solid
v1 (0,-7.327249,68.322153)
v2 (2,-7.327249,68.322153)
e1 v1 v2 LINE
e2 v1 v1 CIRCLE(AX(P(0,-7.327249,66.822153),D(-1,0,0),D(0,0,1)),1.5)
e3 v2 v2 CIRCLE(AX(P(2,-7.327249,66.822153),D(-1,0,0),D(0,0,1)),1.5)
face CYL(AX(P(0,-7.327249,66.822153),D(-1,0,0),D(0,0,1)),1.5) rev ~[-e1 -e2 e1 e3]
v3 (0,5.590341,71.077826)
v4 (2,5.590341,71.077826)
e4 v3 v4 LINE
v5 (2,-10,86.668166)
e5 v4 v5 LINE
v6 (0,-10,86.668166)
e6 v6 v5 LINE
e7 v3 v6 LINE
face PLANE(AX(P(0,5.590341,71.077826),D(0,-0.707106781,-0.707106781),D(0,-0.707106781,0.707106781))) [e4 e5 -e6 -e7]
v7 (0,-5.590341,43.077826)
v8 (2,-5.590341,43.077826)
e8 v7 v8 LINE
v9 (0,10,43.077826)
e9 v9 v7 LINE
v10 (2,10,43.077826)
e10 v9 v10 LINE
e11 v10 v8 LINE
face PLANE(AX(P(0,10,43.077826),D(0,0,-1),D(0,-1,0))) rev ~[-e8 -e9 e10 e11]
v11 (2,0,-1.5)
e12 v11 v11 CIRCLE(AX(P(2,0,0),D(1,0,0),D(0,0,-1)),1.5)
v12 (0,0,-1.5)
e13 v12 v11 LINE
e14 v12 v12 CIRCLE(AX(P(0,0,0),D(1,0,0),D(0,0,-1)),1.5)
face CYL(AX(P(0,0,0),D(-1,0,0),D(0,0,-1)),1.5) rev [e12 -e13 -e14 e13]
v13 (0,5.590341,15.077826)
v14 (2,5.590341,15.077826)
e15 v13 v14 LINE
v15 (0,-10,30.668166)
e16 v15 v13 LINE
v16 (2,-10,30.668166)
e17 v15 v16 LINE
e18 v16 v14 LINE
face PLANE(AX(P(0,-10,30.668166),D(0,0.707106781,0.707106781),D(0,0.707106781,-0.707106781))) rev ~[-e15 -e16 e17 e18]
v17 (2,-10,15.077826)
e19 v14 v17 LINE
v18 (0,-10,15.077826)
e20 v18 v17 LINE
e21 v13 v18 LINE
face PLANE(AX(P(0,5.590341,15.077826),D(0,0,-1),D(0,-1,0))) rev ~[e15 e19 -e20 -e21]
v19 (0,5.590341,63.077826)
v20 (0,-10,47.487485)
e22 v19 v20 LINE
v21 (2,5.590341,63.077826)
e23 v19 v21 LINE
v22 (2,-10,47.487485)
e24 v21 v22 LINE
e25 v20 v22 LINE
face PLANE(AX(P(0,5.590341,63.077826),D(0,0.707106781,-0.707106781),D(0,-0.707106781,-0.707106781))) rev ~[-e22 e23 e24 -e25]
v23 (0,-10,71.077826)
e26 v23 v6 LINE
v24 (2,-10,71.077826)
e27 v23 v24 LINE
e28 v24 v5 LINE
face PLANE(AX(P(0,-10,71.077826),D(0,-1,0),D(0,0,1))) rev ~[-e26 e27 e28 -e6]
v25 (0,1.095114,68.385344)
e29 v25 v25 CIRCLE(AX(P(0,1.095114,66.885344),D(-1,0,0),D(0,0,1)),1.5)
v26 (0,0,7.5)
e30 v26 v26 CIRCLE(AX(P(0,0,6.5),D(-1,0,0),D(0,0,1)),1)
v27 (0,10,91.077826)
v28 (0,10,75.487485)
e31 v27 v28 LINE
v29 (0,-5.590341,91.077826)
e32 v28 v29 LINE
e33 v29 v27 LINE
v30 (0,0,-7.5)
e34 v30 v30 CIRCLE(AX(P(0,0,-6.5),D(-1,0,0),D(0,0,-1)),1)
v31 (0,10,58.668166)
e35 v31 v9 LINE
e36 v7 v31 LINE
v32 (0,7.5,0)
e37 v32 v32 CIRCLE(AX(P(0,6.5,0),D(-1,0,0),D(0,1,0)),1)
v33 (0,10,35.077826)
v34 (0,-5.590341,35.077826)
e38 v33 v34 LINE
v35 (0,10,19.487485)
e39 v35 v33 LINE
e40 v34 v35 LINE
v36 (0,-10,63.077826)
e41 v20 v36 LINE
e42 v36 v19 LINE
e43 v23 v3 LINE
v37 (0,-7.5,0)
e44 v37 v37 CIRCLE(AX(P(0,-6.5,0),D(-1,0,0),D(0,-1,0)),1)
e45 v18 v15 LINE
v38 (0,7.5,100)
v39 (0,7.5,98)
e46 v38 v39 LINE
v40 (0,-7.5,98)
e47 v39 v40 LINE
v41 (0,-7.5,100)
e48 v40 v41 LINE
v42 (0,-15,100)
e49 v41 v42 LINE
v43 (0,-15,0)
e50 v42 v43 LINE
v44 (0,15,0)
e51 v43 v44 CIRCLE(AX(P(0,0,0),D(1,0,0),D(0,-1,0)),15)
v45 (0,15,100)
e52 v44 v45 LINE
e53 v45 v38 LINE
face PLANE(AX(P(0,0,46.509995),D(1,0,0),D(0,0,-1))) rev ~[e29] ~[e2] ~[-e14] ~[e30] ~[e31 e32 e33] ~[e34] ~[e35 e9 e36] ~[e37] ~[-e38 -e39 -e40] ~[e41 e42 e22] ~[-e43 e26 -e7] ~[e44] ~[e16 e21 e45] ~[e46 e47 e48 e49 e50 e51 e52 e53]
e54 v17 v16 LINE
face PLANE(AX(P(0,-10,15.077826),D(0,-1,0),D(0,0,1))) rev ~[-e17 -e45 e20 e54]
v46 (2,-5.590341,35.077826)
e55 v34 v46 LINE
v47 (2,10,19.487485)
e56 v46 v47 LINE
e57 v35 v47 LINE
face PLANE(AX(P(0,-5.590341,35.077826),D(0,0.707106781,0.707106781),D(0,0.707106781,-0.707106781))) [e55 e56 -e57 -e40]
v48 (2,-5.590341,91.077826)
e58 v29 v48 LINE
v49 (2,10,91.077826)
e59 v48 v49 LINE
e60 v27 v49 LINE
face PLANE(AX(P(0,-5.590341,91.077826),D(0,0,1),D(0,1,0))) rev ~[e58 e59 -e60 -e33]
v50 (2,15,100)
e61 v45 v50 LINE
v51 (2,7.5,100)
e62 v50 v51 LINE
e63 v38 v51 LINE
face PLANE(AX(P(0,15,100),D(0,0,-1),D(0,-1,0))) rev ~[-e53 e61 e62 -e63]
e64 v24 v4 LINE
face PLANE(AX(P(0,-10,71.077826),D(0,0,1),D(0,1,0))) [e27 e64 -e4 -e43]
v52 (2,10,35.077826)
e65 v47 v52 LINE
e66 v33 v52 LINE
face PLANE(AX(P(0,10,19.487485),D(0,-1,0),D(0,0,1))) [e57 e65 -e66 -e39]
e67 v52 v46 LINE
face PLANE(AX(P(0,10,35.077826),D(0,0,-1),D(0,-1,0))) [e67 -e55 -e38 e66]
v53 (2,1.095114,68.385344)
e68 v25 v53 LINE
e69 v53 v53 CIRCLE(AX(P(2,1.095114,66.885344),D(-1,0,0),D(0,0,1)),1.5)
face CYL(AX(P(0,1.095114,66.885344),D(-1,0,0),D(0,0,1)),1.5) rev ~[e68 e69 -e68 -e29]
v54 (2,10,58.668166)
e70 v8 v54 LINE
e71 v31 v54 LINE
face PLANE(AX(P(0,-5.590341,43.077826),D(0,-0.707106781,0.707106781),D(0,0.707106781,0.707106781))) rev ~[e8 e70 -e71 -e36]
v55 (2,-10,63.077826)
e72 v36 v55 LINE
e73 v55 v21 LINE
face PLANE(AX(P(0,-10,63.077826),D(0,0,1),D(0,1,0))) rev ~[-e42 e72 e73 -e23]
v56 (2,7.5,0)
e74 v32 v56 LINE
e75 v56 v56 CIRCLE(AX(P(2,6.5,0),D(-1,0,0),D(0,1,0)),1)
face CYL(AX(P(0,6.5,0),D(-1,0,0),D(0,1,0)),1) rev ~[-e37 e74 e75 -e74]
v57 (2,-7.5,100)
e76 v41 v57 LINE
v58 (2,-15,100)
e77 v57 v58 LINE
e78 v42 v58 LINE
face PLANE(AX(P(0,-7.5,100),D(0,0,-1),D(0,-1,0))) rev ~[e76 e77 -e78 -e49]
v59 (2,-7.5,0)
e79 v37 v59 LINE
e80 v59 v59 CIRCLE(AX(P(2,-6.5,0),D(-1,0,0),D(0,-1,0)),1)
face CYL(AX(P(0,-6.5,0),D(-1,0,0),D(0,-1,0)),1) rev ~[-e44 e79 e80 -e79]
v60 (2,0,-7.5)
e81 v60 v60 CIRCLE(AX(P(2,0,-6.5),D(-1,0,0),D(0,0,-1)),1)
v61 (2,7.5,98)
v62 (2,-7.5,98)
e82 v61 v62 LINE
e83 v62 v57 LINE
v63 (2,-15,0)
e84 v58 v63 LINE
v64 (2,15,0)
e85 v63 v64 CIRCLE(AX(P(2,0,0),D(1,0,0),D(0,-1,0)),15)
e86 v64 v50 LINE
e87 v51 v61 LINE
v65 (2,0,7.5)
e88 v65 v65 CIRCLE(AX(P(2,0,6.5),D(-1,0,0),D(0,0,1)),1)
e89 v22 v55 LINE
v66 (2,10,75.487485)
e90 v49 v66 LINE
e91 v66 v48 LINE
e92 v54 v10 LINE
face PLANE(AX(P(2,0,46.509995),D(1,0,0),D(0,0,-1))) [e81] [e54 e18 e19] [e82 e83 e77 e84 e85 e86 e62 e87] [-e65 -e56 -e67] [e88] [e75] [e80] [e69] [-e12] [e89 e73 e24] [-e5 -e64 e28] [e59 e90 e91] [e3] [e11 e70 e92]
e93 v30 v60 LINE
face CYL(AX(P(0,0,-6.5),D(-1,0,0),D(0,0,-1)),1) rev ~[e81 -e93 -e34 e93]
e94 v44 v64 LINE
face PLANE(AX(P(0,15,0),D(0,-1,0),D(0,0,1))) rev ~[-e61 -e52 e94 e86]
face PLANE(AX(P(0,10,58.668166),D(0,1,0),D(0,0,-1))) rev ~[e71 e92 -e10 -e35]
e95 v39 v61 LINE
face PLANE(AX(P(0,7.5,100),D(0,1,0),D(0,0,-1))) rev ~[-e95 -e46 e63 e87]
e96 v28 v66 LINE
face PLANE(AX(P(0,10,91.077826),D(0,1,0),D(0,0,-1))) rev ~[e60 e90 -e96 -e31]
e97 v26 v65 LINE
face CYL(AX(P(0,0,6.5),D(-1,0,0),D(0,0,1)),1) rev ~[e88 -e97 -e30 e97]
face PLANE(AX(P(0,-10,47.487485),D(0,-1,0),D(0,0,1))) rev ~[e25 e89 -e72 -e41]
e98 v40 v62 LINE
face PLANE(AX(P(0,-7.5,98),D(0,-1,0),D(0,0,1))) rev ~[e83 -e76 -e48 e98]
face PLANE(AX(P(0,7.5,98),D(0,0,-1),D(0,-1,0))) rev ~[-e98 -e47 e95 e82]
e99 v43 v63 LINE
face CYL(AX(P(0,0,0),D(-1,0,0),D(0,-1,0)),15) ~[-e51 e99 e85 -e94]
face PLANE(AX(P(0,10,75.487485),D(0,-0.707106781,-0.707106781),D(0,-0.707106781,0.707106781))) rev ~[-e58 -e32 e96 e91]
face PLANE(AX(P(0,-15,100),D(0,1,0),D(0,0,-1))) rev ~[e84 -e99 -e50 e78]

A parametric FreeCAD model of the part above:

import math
import FreeCAD as App
import Part
import Sketcher
from FreeCAD import Vector

doc = App.newDocument("Part")
body = doc.addObject("PartDesign::Body", "Body")

# Sketch on YZ plane
sketch1 = doc.addObject("Sketcher::SketchObject", "Sketch")
body.addObject(sketch1)
sketch1.AttachmentSupport = (doc.YZ_Plane, [""])
sketch1.MapMode = "FlatFace"
sketch1.addGeometry([
    Part.LineSegment(Vector(15, 0, 0), Vector(15, 100, 0)),  # 0
    Part.LineSegment(Vector(15, 100, 0), Vector(7.5, 100, 0)),  # 1
    Part.LineSegment(Vector(7.5, 100, 0), Vector(7.5, 98, 0)),  # 2
    Part.LineSegment(Vector(7.5, 98, 0), Vector(-7.5, 98, 0)),  # 3
    Part.LineSegment(Vector(-7.5, 98, 0), Vector(-7.5, 100, 0)),  # 4
    Part.LineSegment(Vector(-7.5, 100, 0), Vector(-15, 100, 0)),  # 5
    Part.LineSegment(Vector(-15, 100, 0), Vector(-15, 0, 0)),  # 6
    Part.ArcOfCircle(Part.Circle(Vector(0, 0, 0), Vector(0, 0, 1), 15), math.radians(180), math.radians(360)),  # 7
    Part.LineSegment(Vector(-10, 71.1, 0), Vector(-10, 86.7, 0)),  # 8
    Part.LineSegment(Vector(-10, 86.7, 0), Vector(5.6, 71.1, 0)),  # 9
    Part.LineSegment(Vector(5.6, 71.1, 0), Vector(-10, 71.1, 0)),  # 10
    Part.LineSegment(Vector(5.6, 63.1, 0), Vector(-10, 47.5, 0)),  # 11
    Part.LineSegment(Vector(-10, 47.5, 0), Vector(-10, 63.1, 0)),  # 12
    Part.LineSegment(Vector(-10, 63.1, 0), Vector(5.6, 63.1, 0)),  # 13
    Part.LineSegment(Vector(-10, 30.7, 0), Vector(5.6, 15.1, 0)),  # 14
    Part.LineSegment(Vector(5.6, 15.1, 0), Vector(-10, 15.1, 0)),  # 15
    Part.LineSegment(Vector(-10, 15.1, 0), Vector(-10, 30.7, 0)),  # 16
    Part.Circle(Vector(0, 0, 0), Vector(0, 0, 1), 1.5),  # 17
    Part.LineSegment(Vector(-5.6, 91.1, 0), Vector(10, 91.1, 0)),  # 18
    Part.LineSegment(Vector(10, 91.1, 0), Vector(10, 75.5, 0)),  # 19
    Part.LineSegment(Vector(10, 75.5, 0), Vector(-5.6, 91.1, 0)),  # 20
    Part.LineSegment(Vector(10, 43.1, 0), Vector(-5.6, 43.1, 0)),  # 21
    Part.LineSegment(Vector(-5.6, 43.1, 0), Vector(10, 58.7, 0)),  # 22
    Part.LineSegment(Vector(10, 58.7, 0), Vector(10, 43.1, 0)),  # 23
    Part.LineSegment(Vector(-5.6, 35.1, 0), Vector(10, 35.1, 0)),  # 24
    Part.LineSegment(Vector(10, 35.1, 0), Vector(10, 19.5, 0)),  # 25
    Part.LineSegment(Vector(10, 19.5, 0), Vector(-5.6, 35.1, 0)),  # 26
], False)
sketch1.addConstraint([
    Sketcher.Constraint("Coincident", 0, 2, 1, 1),
    Sketcher.Constraint("Coincident", 1, 2, 2, 1),
    Sketcher.Constraint("Coincident", 2, 2, 3, 1),
    Sketcher.Constraint("Coincident", 3, 2, 4, 1),
    Sketcher.Constraint("Coincident", 4, 2, 5, 1),
    Sketcher.Constraint("Coincident", 5, 2, 6, 1),
    Sketcher.Constraint("Tangent", 6, 2, 7, 1),
    Sketcher.Constraint("Tangent", 7, 2, 0, 1),
    Sketcher.Constraint("Coincident", 8, 2, 9, 1),
    Sketcher.Constraint("Coincident", 9, 2, 10, 1),
    Sketcher.Constraint("Coincident", 10, 2, 8, 1),
    Sketcher.Constraint("Coincident", 11, 2, 12, 1),
    Sketcher.Constraint("Coincident", 12, 2, 13, 1),
    Sketcher.Constraint("Coincident", 13, 2, 11, 1),
    Sketcher.Constraint("Coincident", 14, 2, 15, 1),
    Sketcher.Constraint("Coincident", 15, 2, 16, 1),
    Sketcher.Constraint("Coincident", 16, 2, 14, 1),
    Sketcher.Constraint("Coincident", 18, 2, 19, 1),
    Sketcher.Constraint("Coincident", 19, 2, 20, 1),
    Sketcher.Constraint("Coincident", 20, 2, 18, 1),
    Sketcher.Constraint("Coincident", 21, 2, 22, 1),
    Sketcher.Constraint("Coincident", 22, 2, 23, 1),
    Sketcher.Constraint("Coincident", 23, 2, 21, 1),
    Sketcher.Constraint("Coincident", 24, 2, 25, 1),
    Sketcher.Constraint("Coincident", 25, 2, 26, 1),
    Sketcher.Constraint("Coincident", 26, 2, 24, 1),
    Sketcher.Constraint("Vertical", 0),
    Sketcher.Constraint("Horizontal", 1),
    Sketcher.Constraint("Vertical", 2),
    Sketcher.Constraint("Horizontal", 3),
    Sketcher.Constraint("Vertical", 4),
    Sketcher.Constraint("Horizontal", 5),
    Sketcher.Constraint("Vertical", 6),
    Sketcher.Constraint("Vertical", 8),
    Sketcher.Constraint("Horizontal", 10),
    Sketcher.Constraint("Vertical", 12),
    Sketcher.Constraint("Horizontal", 13),
    Sketcher.Constraint("Horizontal", 15),
    Sketcher.Constraint("Vertical", 16),
    Sketcher.Constraint("Horizontal", 18),
    Sketcher.Constraint("Vertical", 19),
    Sketcher.Constraint("Horizontal", 21),
    Sketcher.Constraint("Vertical", 23),
    Sketcher.Constraint("Horizontal", 24),
    Sketcher.Constraint("Vertical", 25),
    Sketcher.Constraint("Coincident", 7, 3, -1, 1),
    Sketcher.Constraint("Coincident", 17, 3, -1, 1),
    Sketcher.Constraint("Symmetric", 1, 2, 4, 2, -2),
    Sketcher.Constraint("Perpendicular", 9, 11),
    Sketcher.Constraint("Perpendicular", 11, 14),
    Sketcher.Constraint("Parallel", 14, 20),
    Sketcher.Constraint("Perpendicular", 20, 22),
    Sketcher.Constraint("Perpendicular", 22, 26),
    Sketcher.Constraint("Vertical", 10, 2, 11, 2),
    Sketcher.Constraint("Vertical", 9, 2, 13, 2),
    Sketcher.Constraint("Vertical", 13, 2, 14, 2),
    Sketcher.Constraint("Vertical", 12, 2, 15, 2),
    Sketcher.Constraint("Vertical", 20, 2, 21, 2),
    Sketcher.Constraint("Vertical", 19, 2, 22, 2),
    Sketcher.Constraint("Vertical", 23, 2, 24, 2),
    Sketcher.Constraint("Vertical", 21, 2, 26, 2),
    Sketcher.Constraint("Equal", 15, 18),
    Sketcher.Constraint("Equal", 24, 8),
    Sketcher.Constraint("Diameter", 17, 3.0),
    Sketcher.Constraint("Radius", 7, 15.0),
    Sketcher.Constraint("DistanceX", 3, 2, 3, 1, 15.0),
    Sketcher.Constraint("DistanceY", 0, 1, 0, 2, 100.0),
    Sketcher.Constraint("DistanceY", 2, 2, 2, 1, 2.0),
    Sketcher.Constraint("DistanceX", 8, 2, -1, 1, 10.0),
    Sketcher.Constraint("DistanceX", -1, 1, 18, 2, 10.0),
    Sketcher.Constraint("DistanceY", 12, 2, 10, 2, 8.0),
    Sketcher.Constraint("DistanceY", 21, 2, 12, 2, 20.0),
    Sketcher.Constraint("DistanceY", 24, 2, 23, 2, 8.0),
    Sketcher.Constraint("DistanceY", 14, 2, 24, 2, 20.0),
    Sketcher.Constraint("DistanceX", 10, 2, 10, 1, 15.590341),
    Sketcher.Constraint("DistanceY", 9, 2, 19, 2, 4.409659),
    Sketcher.Constraint("DistanceY", -1, 1, 8, 2, 86.668166),
])
pad1 = doc.addObject("PartDesign::Pad", "Pad")
body.addObject(pad1)
pad1.Profile = sketch1
pad1.Length = 2

# Sketch on YZ plane
sketch2 = doc.addObject("Sketcher::SketchObject", "Sketch001")
body.addObject(sketch2)
sketch2.AttachmentSupport = (doc.YZ_Plane, [""])
sketch2.MapMode = "FlatFace"
sketch2.addGeometry([
    Part.Circle(Vector(0, 6.5, 0), Vector(0, 0, 1), 1),
    Part.Circle(Vector(1.1, 66.9, 0), Vector(0, 0, 1), 1.5),
    Part.Circle(Vector(-7.3, 66.8, 0), Vector(0, 0, 1), 1.5),
], False)
sketch2.addConstraint([
    Sketcher.Constraint("Equal", 1, 2),
    Sketcher.Constraint("PointOnObject", 0, 3, -2),
    Sketcher.Constraint("Diameter", 0, 2.0),
    Sketcher.Constraint("Diameter", 1, 3.0),
    Sketcher.Constraint("DistanceY", -1, 1, 0, 3, 6.5),
    Sketcher.Constraint("DistanceX", 2, 3, -1, 1, 7.327249),
    Sketcher.Constraint("DistanceY", 2, 3, 1, 3, 0.063192),
    Sketcher.Constraint("DistanceX", -1, 1, 1, 3, 1.095114),
    Sketcher.Constraint("DistanceY", -1, 1, 1, 3, 66.885344),
])
pocket1 = doc.addObject("PartDesign::Pocket", "Pocket")
body.addObject(pocket1)
pocket1.Profile = sketch2
pocket1.Length = 2
pocket1.Reversed = True
doc.recompute()

polarpattern = doc.addObject("PartDesign::PolarPattern", "PolarPattern")
body.addObject(polarpattern)
polarpattern.Originals = [pocket1]
polarpattern.Axis = (doc.X_Axis, [""])
polarpattern.Angle = 360
polarpattern.Occurrences = 4
body.Tip = polarpattern

doc.recompute()
